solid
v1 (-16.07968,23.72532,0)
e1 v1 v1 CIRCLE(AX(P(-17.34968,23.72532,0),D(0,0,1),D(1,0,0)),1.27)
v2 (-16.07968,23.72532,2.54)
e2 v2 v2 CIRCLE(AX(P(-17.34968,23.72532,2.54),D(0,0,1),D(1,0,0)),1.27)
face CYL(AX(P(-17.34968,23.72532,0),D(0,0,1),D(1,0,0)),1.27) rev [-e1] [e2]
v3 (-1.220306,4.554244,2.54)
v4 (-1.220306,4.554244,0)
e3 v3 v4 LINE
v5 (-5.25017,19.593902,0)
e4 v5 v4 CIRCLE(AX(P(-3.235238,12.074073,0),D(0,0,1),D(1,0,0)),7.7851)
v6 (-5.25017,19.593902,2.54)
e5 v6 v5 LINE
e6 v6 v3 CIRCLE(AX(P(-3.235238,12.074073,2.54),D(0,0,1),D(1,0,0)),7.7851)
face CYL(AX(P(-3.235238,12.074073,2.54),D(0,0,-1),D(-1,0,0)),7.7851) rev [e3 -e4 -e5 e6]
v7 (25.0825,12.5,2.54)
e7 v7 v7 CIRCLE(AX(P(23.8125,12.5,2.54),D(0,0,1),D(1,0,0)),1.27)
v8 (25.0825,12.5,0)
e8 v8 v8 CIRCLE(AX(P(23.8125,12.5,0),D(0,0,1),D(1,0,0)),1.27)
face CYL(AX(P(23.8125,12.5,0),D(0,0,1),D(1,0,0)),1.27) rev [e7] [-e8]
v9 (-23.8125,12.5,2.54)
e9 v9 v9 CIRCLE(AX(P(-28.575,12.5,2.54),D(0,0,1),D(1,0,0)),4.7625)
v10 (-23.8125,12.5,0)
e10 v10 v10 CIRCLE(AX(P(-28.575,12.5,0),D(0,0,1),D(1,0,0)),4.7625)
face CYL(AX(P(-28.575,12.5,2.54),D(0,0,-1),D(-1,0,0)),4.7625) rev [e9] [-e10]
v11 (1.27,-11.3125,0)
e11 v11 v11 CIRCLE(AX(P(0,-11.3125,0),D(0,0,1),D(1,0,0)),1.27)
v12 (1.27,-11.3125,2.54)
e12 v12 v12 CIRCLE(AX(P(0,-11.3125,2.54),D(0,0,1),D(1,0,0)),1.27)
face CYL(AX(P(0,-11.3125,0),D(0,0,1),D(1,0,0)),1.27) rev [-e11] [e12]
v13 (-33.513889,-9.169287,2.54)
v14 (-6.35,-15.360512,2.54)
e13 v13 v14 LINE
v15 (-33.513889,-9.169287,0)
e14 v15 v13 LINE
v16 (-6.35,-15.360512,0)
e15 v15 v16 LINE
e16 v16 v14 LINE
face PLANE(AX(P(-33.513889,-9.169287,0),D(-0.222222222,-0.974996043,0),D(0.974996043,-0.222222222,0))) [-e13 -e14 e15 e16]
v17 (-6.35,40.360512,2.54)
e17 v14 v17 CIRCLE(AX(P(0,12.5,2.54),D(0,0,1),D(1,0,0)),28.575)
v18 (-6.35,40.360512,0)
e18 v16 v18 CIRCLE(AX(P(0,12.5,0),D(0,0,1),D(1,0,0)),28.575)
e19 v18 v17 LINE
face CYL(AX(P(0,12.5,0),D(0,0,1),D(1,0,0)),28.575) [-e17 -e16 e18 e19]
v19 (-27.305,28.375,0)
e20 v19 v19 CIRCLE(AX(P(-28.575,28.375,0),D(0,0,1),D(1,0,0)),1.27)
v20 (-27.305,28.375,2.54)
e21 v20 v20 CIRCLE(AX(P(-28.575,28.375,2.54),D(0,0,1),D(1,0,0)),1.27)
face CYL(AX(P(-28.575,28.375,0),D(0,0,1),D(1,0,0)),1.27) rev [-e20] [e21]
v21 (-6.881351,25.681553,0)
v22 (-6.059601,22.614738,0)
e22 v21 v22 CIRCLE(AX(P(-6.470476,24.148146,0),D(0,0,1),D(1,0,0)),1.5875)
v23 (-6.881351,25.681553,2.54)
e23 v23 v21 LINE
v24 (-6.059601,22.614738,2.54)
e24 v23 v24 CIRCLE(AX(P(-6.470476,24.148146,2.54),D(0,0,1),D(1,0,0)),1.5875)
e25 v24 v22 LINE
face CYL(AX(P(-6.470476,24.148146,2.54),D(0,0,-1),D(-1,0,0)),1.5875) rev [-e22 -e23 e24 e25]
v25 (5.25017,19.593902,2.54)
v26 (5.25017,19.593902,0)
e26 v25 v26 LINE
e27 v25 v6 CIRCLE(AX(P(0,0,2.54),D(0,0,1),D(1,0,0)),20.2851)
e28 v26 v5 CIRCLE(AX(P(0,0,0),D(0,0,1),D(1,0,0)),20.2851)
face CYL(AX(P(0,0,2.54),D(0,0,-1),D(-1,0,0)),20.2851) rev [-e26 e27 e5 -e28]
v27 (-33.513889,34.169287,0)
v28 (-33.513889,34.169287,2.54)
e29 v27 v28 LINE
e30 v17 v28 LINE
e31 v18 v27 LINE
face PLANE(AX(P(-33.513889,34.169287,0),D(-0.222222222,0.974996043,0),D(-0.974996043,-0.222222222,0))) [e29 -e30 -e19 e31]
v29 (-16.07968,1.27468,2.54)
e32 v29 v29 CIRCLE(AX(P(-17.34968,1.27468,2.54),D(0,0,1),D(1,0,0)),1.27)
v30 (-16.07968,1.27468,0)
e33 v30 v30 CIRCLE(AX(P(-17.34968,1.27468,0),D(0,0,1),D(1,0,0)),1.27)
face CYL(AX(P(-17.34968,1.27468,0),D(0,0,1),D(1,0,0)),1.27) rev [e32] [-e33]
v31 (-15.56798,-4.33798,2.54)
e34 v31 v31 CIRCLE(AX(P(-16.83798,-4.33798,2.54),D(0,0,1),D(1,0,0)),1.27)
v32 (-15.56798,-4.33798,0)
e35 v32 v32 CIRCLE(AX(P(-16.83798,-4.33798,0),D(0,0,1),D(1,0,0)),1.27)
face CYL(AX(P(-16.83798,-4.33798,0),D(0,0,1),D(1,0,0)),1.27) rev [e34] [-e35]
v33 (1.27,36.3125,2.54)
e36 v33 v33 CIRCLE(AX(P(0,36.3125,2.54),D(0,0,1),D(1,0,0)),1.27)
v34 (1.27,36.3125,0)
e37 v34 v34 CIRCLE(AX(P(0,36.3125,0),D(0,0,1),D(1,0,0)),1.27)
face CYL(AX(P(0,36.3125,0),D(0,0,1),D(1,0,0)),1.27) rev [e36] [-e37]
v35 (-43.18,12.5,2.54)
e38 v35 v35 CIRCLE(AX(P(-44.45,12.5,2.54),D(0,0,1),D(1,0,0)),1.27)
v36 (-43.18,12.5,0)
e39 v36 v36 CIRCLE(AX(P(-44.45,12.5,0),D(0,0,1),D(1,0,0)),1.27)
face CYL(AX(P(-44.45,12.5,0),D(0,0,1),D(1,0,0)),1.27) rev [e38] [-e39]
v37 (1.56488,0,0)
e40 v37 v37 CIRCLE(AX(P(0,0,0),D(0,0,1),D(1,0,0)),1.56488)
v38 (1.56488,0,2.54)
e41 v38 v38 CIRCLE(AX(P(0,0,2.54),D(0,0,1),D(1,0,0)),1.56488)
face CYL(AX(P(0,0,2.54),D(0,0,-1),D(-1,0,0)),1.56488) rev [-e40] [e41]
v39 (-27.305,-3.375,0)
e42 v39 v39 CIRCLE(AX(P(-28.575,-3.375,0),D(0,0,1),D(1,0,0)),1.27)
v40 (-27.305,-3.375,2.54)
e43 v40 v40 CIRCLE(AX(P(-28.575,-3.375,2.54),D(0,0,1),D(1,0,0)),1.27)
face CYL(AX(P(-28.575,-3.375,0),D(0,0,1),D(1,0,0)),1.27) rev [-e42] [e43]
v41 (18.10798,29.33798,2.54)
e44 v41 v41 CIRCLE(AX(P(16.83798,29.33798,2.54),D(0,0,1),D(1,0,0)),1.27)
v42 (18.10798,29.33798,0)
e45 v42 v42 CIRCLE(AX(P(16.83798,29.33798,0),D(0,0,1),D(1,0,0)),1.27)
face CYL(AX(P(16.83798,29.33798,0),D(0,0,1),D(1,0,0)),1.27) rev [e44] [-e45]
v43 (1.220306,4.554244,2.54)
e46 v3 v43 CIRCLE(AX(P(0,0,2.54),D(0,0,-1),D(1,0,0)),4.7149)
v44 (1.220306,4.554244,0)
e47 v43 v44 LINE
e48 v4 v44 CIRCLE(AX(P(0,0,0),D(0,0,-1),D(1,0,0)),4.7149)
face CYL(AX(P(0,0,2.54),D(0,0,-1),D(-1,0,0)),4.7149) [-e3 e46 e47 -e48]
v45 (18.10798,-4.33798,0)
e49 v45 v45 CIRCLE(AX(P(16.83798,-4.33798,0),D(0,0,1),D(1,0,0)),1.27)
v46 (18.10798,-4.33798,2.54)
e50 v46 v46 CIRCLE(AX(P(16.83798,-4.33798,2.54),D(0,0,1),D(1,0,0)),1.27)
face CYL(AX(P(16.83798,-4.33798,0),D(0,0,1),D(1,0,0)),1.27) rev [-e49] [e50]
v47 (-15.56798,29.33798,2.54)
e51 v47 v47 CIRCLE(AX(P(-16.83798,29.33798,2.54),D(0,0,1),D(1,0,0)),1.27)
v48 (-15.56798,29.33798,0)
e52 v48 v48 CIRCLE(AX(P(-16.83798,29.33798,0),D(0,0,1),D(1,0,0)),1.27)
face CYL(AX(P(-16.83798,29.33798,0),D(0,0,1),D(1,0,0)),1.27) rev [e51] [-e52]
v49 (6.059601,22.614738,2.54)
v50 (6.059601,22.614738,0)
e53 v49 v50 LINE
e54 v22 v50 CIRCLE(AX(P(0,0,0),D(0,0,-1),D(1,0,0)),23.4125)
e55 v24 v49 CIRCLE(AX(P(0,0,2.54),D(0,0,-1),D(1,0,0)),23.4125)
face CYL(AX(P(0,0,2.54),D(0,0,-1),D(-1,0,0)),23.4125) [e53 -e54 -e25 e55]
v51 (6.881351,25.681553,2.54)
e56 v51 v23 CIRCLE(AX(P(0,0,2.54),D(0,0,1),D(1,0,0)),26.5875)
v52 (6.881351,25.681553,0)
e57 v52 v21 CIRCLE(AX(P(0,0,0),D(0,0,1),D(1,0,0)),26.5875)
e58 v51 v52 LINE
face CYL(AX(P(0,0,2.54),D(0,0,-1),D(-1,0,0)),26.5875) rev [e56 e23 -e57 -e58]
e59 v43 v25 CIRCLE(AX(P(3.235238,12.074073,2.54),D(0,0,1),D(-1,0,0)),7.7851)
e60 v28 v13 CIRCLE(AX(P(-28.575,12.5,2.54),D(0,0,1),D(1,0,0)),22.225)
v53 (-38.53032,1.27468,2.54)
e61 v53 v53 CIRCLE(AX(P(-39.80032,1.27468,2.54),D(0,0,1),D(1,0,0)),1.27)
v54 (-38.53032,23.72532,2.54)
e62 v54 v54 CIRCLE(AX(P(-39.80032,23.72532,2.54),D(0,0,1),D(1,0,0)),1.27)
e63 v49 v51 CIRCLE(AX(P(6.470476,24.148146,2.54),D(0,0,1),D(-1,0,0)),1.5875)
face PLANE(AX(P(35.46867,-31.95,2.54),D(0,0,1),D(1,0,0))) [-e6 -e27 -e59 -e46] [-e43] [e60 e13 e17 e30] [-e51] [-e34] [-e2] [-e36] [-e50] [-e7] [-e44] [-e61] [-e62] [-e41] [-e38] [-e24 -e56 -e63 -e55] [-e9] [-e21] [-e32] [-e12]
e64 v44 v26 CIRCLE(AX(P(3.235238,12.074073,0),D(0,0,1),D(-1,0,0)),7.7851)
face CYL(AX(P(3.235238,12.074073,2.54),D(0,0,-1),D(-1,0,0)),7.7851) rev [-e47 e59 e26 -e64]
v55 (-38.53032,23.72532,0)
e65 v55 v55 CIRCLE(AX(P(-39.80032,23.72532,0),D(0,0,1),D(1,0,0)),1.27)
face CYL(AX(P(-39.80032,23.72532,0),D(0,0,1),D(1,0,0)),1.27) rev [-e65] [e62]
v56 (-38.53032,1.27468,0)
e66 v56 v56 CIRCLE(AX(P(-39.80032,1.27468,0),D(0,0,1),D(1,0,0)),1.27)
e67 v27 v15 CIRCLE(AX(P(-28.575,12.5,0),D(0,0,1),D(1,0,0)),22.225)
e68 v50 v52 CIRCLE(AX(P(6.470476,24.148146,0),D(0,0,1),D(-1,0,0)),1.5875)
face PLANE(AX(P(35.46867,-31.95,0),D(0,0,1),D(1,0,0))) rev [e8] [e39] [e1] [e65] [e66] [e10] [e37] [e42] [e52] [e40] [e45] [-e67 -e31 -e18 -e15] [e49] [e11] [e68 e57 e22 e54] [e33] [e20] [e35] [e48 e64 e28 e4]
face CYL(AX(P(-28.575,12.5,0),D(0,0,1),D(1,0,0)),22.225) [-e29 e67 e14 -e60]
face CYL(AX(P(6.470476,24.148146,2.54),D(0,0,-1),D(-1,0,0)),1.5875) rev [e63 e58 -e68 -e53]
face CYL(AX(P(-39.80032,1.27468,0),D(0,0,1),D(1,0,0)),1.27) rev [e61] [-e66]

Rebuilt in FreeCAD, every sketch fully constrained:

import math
import FreeCAD as App
import Part
import Sketcher

V = App.Vector
Q = App.Units.Quantity

doc = App.newDocument("Part")
body = doc.addObject("PartDesign::Body", "Body")

# Sketch on XY plane
sketch1 = doc.addObject("Sketcher::SketchObject", "Sketch")
body.addObject(sketch1)
sketch1.AttachmentSupport = (doc.XY_Plane, [""])
sketch1.MapMode = "FlatFace"
sketch1.addGeometry(Part.LineSegment(V(-91.5, 57, 0), V(-91.5, -31.9, 0)), False)
sketch1.addGeometry(Part.LineSegment(V(-91.5, -31.9, 0), V(35.5, -31.9, 0)), False)
sketch1.addGeometry(Part.LineSegment(V(35.5, -31.9, 0), V(35.5, 57, 0)), False)
sketch1.addGeometry(Part.LineSegment(V(35.5, 57, 0), V(-91.5, 57, 0)), False)
sketch1.addGeometry(Part.Circle(V(-28.6, 12.5, 0), V(0, 0, 1), 4.8), False)
sketch1.addGeometry(Part.Circle(V(0, 0, 0), V(0, 0, 1), 1.6), False)
sketch1.addGeometry(Part.ArcOfCircle(Part.Circle(V(0, 0, 0), V(0, 0, 1), 20.3), math.radians(75), math.radians(105)), False)
sketch1.addGeometry(Part.ArcOfCircle(Part.Circle(V(3.2, 12.1, 0), V(0, 0, 1), 7.8), math.radians(-105), math.radians(75)), False)
sketch1.addGeometry(Part.ArcOfCircle(Part.Circle(V(0, 0, 0), V(0, 0, 1), 4.7), math.radians(75), math.radians(105)), False)
sketch1.addGeometry(Part.ArcOfCircle(Part.Circle(V(-3.2, 12.1, 0), V(0, 0, 1), 7.8), math.radians(105), math.radians(285)), False)
sketch1.addGeometry(Part.ArcOfCircle(Part.Circle(V(0, 0, 0), V(0, 0, 1), 26.6), math.radians(75), math.radians(105)), False)
sketch1.addGeometry(Part.ArcOfCircle(Part.Circle(V(6.5, 24.1, 0), V(0, 0, 1), 1.6), math.radians(-105), math.radians(75)), False)
sketch1.addGeometry(Part.ArcOfCircle(Part.Circle(V(0, 0, 0), V(0, 0, 1), 23.4), math.radians(75), math.radians(105)), False)
sketch1.addGeometry(Part.ArcOfCircle(Part.Circle(V(-6.5, 24.1, 0), V(0, 0, 1), 1.6), math.radians(105), math.radians(285)), False)
sketch1.addConstraint(Sketcher.Constraint("Coincident", 0, 2, 1, 1))
sketch1.addConstraint(Sketcher.Constraint("Coincident", 1, 2, 2, 1))
sketch1.addConstraint(Sketcher.Constraint("Coincident", 2, 2, 3, 1))
sketch1.addConstraint(Sketcher.Constraint("Coincident", 3, 2, 0, 1))
sketch1.addConstraint(Sketcher.Constraint("Tangent", 6, 1, 7, 2))
sketch1.addConstraint(Sketcher.Constraint("Tangent", 7, 1, 8, 1))
sketch1.addConstraint(Sketcher.Constraint("Tangent", 8, 2, 9, 2))
sketch1.addConstraint(Sketcher.Constraint("Tangent", 9, 1, 6, 2))
sketch1.addConstraint(Sketcher.Constraint("Tangent", 10, 1, 11, 2))
sketch1.addConstraint(Sketcher.Constraint("Tangent", 11, 1, 12, 1))
sketch1.addConstraint(Sketcher.Constraint("Tangent", 12, 2, 13, 2))
sketch1.addConstraint(Sketcher.Constraint("Tangent", 13, 1, 10, 2))
sketch1.addConstraint(Sketcher.Constraint("Vertical", 0))
sketch1.addConstraint(Sketcher.Constraint("Horizontal", 1))
sketch1.addConstraint(Sketcher.Constraint("Vertical", 2))
sketch1.addConstraint(Sketcher.Constraint("Horizontal", 3))
sketch1.addConstraint(Sketcher.Constraint("Coincident", 5, 3, -1, 1))
sketch1.addConstraint(Sketcher.Constraint("Coincident", 6, 3, -1, 1))
sketch1.addConstraint(Sketcher.Constraint("Coincident", 8, 3, -1, 1))
sketch1.addConstraint(Sketcher.Constraint("Coincident", 10, 3, -1, 1))
sketch1.addConstraint(Sketcher.Constraint("Coincident", 12, 3, -1, 1))
sketch1.addConstraint(Sketcher.Constraint("Horizontal", 7, 3, 9, 3))
sketch1.addConstraint(Sketcher.Constraint("Horizontal", 11, 3, 13, 3))
sketch1.addConstraint(Sketcher.Constraint("DistanceX", 1, 1, 1, 2, Q("5 in")))
sketch1.addConstraint(Sketcher.Constraint("Diameter", 4, Q("0.375 in")))
sketch1.addConstraint(Sketcher.Constraint("DistanceY", 0, 2, 0, 1, Q("3.5 in")))
sketch1.addConstraint(Sketcher.Constraint("Radius", 11, Q("0.0625 in")))
sketch1.addConstraint(Sketcher.Constraint("Radius", 7, Q("0.3065 in")))
sketch1.addConstraint(Sketcher.Constraint("Radius", 6, 20.2851))
sketch1.addConstraint(Sketcher.Constraint("Radius", 10, 26.5875))
sketch1.addConstraint(Sketcher.Constraint("DistanceY", 0, 2, 4, 3, Q("1.75 in")))
sketch1.addConstraint(Sketcher.Constraint("Diameter", 5, 3.129761))
sketch1.addConstraint(Sketcher.Constraint("DistanceX", 4, 3, -1, 1, Q("1.125 in")))
sketch1.addConstraint(Sketcher.Constraint("DistanceY", -1, 1, 4, 3, 12.5))
sketch1.addConstraint(Sketcher.Constraint("DistanceY", -1, 1, 6, 1, 19.593902))
sketch1.addConstraint(Sketcher.Constraint("DistanceX", -1, 1, 11, 1, 6.059601))
sketch1.addConstraint(Sketcher.Constraint("DistanceX", 0, 2, -1, 1, 91.53133))
pad1 = doc.addObject("PartDesign::Pad", "Pad")
body.addObject(pad1)
pad1.Profile = sketch1
pad1.Length = Q("0.1 in")

# Sketch on XY plane
sketch2 = doc.addObject("Sketcher::SketchObject", "Sketch001")
body.addObject(sketch2)
sketch2.AttachmentSupport = (doc.XY_Plane, [""])
sketch2.MapMode = "FlatFace"
sketch2.AttachmentOffset = App.Placement(V(0, 0, 0.1 * 25.4), App.Rotation())
sketch2.addGeometry(Part.LineSegment(V(-107, 80, 0), V(-107, -46, 0)), False)
sketch2.addGeometry(Part.LineSegment(V(-107, -46, 0), V(71, -46, 0)), False)
sketch2.addGeometry(Part.LineSegment(V(71, -46, 0), V(71, 80, 0)), False)
sketch2.addGeometry(Part.LineSegment(V(71, 80, 0), V(-107, 80, 0)), False)
sketch2.addGeometry(Part.ArcOfCircle(Part.Circle(V(-29, 12, 0), V(0, 0, 1), 22), math.radians(103), math.radians(257)), False)
sketch2.addGeometry(Part.LineSegment(V(-34, 34, 0), V(-6, 40, 0)), False)
sketch2.addGeometry(Part.ArcOfCircle(Part.Circle(V(0, 12, 0), V(0, 0, 1), 29), math.radians(-103), math.radians(103)), False)
sketch2.addGeometry(Part.LineSegment(V(-6, -15, 0), V(-34, -9, 0)), False)
sketch2.addConstraint(Sketcher.Constraint("Coincident", 0, 2, 1, 1))
sketch2.addConstraint(Sketcher.Constraint("Coincident", 1, 2, 2, 1))
sketch2.addConstraint(Sketcher.Constraint("Coincident", 2, 2, 3, 1))
sketch2.addConstraint(Sketcher.Constraint("Coincident", 3, 2, 0, 1))
sketch2.addConstraint(Sketcher.Constraint("Tangent", 4, 1, 5, 1))
sketch2.addConstraint(Sketcher.Constraint("Tangent", 5, 2, 6, 2))
sketch2.addConstraint(Sketcher.Constraint("Tangent", 6, 1, 7, 1))
sketch2.addConstraint(Sketcher.Constraint("Tangent", 7, 2, 4, 2))
sketch2.addConstraint(Sketcher.Constraint("Vertical", 0))
sketch2.addConstraint(Sketcher.Constraint("Horizontal", 1))
sketch2.addConstraint(Sketcher.Constraint("Vertical", 2))
sketch2.addConstraint(Sketcher.Constraint("Horizontal", 3))
sketch2.addConstraint(Sketcher.Constraint("PointOnObject", 6, 3, -2))
sketch2.addConstraint(Sketcher.Constraint("Horizontal", 4, 3, 6, 3))
sketch2.addConstraint(Sketcher.Constraint("Radius", 4, Q("0.875 in")))
sketch2.addConstraint(Sketcher.Constraint("Radius", 6, Q("1.125 in")))
sketch2.addConstraint(Sketcher.Constraint("DistanceX", 5, 2, -1, 1, Q("0.25 in")))
sketch2.addConstraint(Sketcher.Constraint("DistanceX", 1, 1, 1, 2, 177.5196))
sketch2.addConstraint(Sketcher.Constraint("DistanceY", 0, 2, 0, 1, 126.718171))
sketch2.addConstraint(Sketcher.Constraint("DistanceY", -1, 1, 4, 3, 12.5))
sketch2.addConstraint(Sketcher.Constraint("DistanceY", 0, 2, 4, 1, 80.520099))
sketch2.addConstraint(Sketcher.Constraint("DistanceX", 0, 2, -1, 1, 107.017452))
pocket1 = doc.addObject("PartDesign::Pocket", "Pocket")
body.addObject(pocket1)
pocket1.Profile = sketch2
pocket1.Type = "ThroughAll"

# Sketch on XY plane
sketch3 = doc.addObject("Sketcher::SketchObject", "Sketch002")
body.addObject(sketch3)
sketch3.AttachmentSupport = (doc.XY_Plane, [""])
sketch3.MapMode = "FlatFace"
sketch3.AttachmentOffset = App.Placement(V(0, 0, 0.1 * 25.4), App.Rotation())
sketch3.addGeometry(Part.Circle(V(-28.6, 28.4, 0), V(0, 0, 1), 1.3), False)
sketch3.addGeometry(Part.Circle(V(0, 36.3, 0), V(0, 0, 1), 1.3), False)
sketch3.addGeometry(Part.Circle(V(-17.3, 23.7, 0), V(0, 0, 1), 1.3), False)
sketch3.addGeometry(Part.Circle(V(-17.3, 1.3, 0), V(0, 0, 1), 1.3), False)
sketch3.addGeometry(Part.Circle(V(-28.6, -3.4, 0), V(0, 0, 1), 1.3), False)
sketch3.addGeometry(Part.Circle(V(-39.8, 1.3, 0), V(0, 0, 1), 1.3), False)
sketch3.addGeometry(Part.Circle(V(-44.5, 12.5, 0), V(0, 0, 1), 1.3), False)
sketch3.addGeometry(Part.Circle(V(-39.8, 23.7, 0), V(0, 0, 1), 1.3), False)
sketch3.addGeometry(Part.Circle(V(16.8, 29.3, 0), V(0, 0, 1), 1.3), False)
sketch3.addGeometry(Part.Circle(V(23.8, 12.5, 0), V(0, 0, 1), 1.3), False)
sketch3.addGeometry(Part.Circle(V(16.8, -4.3, 0), V(0, 0, 1), 1.3), False)
sketch3.addGeometry(Part.Circle(V(0, -11.3, 0), V(0, 0, 1), 1.3), False)
sketch3.addGeometry(Part.Circle(V(-16.8, -4.3, 0), V(0, 0, 1), 1.3), False)
sketch3.addGeometry(Part.Circle(V(-16.8, 29.3, 0), V(0, 0, 1), 1.3), False)
sketch3.addConstraint(Sketcher.Constraint("Equal", 0, 1))
sketch3.addConstraint(Sketcher.Constraint("Equal", 1, 2))
sketch3.addConstraint(Sketcher.Constraint("Equal", 2, 3))
sketch3.addConstraint(Sketcher.Constraint("Equal", 3, 4))
sketch3.addConstraint(Sketcher.Constraint("Equal", 4, 5))
sketch3.addConstraint(Sketcher.Constraint("Equal", 5, 6))
sketch3.addConstraint(Sketcher.Constraint("Equal", 6, 7))
sketch3.addConstraint(Sketcher.Constraint("Equal", 7, 8))
sketch3.addConstraint(Sketcher.Constraint("Equal", 8, 9))
sketch3.addConstraint(Sketcher.Constraint("Equal", 9, 10))
sketch3.addConstraint(Sketcher.Constraint("Equal", 10, 11))
sketch3.addConstraint(Sketcher.Constraint("Equal", 11, 12))
sketch3.addConstraint(Sketcher.Constraint("Equal", 12, 13))
sketch3.addConstraint(Sketcher.Constraint("Symmetric", 10, 3, 12, 3, -2))
sketch3.addConstraint(Sketcher.Constraint("Symmetric", 8, 3, 13, 3, -2))
sketch3.addConstraint(Sketcher.Constraint("PointOnObject", 1, 3, -2))
sketch3.addConstraint(Sketcher.Constraint("PointOnObject", 11, 3, -2))
sketch3.addConstraint(Sketcher.Constraint("Horizontal", 3, 3, 5, 3))
sketch3.addConstraint(Sketcher.Constraint("Horizontal", 2, 3, 7, 3))
sketch3.addConstraint(Sketcher.Constraint("Horizontal", 6, 3, 9, 3))
sketch3.addConstraint(Sketcher.Constraint("Vertical", 2, 3, 3, 3))
sketch3.addConstraint(Sketcher.Constraint("Vertical", 0, 3, 4, 3))
sketch3.addConstraint(Sketcher.Constraint("Vertical", 5, 3, 7, 3))
sketch3.addConstraint(Sketcher.Constraint("Vertical", 8, 3, 10, 3))
sketch3.addConstraint(Sketcher.Constraint("Diameter", 0, Q("0.1 in")))
sketch3.addConstraint(Sketcher.Constraint("DistanceX", 6, 3, -1, 1, Q("1.75 in")))
sketch3.addConstraint(Sketcher.Constraint("DistanceY", 4, 3, 0, 3, Q("1.25 in")))
sketch3.addConstraint(Sketcher.Constraint("DistanceX", 0, 3, -1, 1, Q("1.125 in")))
sketch3.addConstraint(Sketcher.Constraint("DistanceX", -1, 1, 9, 3, Q("0.9375 in")))
sketch3.addConstraint(Sketcher.Constraint("DistanceY", 0, 3, 1, 3, Q("0.3125 in")))
sketch3.addConstraint(Sketcher.Constraint("DistanceY", 6, 3, 0, 3, Q("0.625 in")))
sketch3.addConstraint(Sketcher.Constraint("DistanceY", 11, 3, 4, 3, Q("0.3125 in")))
sketch3.addConstraint(Sketcher.Constraint("DistanceY", -1, 1, 0, 3, 28.375))
sketch3.addConstraint(Sketcher.Constraint("DistanceY", 3, 3, 8, 3, 28.0633))
sketch3.addConstraint(Sketcher.Constraint("DistanceY", 10, 3, 2, 3, 28.0633))
sketch3.addConstraint(Sketcher.Constraint("DistanceX", 3, 3, 12, 3, 0.5117))
sketch3.addConstraint(Sketcher.Constraint("DistanceX", 2, 3, -1, 1, 17.34968))
sketch3.addConstraint(Sketcher.Constraint("DistanceY", -1, 1, 2, 3, 23.72532))
sketch3.addConstraint(Sketcher.Constraint("DistanceY", -1, 1, 3, 3, 1.27468))
sketch3.addConstraint(Sketcher.Constraint("DistanceX", 5, 3, -1, 1, 39.80032))
pocket2 = doc.addObject("PartDesign::Pocket", "Pocket001")
body.addObject(pocket2)
pocket2.Profile = sketch3
pocket2.Type = "ThroughAll"

doc.recompute()
